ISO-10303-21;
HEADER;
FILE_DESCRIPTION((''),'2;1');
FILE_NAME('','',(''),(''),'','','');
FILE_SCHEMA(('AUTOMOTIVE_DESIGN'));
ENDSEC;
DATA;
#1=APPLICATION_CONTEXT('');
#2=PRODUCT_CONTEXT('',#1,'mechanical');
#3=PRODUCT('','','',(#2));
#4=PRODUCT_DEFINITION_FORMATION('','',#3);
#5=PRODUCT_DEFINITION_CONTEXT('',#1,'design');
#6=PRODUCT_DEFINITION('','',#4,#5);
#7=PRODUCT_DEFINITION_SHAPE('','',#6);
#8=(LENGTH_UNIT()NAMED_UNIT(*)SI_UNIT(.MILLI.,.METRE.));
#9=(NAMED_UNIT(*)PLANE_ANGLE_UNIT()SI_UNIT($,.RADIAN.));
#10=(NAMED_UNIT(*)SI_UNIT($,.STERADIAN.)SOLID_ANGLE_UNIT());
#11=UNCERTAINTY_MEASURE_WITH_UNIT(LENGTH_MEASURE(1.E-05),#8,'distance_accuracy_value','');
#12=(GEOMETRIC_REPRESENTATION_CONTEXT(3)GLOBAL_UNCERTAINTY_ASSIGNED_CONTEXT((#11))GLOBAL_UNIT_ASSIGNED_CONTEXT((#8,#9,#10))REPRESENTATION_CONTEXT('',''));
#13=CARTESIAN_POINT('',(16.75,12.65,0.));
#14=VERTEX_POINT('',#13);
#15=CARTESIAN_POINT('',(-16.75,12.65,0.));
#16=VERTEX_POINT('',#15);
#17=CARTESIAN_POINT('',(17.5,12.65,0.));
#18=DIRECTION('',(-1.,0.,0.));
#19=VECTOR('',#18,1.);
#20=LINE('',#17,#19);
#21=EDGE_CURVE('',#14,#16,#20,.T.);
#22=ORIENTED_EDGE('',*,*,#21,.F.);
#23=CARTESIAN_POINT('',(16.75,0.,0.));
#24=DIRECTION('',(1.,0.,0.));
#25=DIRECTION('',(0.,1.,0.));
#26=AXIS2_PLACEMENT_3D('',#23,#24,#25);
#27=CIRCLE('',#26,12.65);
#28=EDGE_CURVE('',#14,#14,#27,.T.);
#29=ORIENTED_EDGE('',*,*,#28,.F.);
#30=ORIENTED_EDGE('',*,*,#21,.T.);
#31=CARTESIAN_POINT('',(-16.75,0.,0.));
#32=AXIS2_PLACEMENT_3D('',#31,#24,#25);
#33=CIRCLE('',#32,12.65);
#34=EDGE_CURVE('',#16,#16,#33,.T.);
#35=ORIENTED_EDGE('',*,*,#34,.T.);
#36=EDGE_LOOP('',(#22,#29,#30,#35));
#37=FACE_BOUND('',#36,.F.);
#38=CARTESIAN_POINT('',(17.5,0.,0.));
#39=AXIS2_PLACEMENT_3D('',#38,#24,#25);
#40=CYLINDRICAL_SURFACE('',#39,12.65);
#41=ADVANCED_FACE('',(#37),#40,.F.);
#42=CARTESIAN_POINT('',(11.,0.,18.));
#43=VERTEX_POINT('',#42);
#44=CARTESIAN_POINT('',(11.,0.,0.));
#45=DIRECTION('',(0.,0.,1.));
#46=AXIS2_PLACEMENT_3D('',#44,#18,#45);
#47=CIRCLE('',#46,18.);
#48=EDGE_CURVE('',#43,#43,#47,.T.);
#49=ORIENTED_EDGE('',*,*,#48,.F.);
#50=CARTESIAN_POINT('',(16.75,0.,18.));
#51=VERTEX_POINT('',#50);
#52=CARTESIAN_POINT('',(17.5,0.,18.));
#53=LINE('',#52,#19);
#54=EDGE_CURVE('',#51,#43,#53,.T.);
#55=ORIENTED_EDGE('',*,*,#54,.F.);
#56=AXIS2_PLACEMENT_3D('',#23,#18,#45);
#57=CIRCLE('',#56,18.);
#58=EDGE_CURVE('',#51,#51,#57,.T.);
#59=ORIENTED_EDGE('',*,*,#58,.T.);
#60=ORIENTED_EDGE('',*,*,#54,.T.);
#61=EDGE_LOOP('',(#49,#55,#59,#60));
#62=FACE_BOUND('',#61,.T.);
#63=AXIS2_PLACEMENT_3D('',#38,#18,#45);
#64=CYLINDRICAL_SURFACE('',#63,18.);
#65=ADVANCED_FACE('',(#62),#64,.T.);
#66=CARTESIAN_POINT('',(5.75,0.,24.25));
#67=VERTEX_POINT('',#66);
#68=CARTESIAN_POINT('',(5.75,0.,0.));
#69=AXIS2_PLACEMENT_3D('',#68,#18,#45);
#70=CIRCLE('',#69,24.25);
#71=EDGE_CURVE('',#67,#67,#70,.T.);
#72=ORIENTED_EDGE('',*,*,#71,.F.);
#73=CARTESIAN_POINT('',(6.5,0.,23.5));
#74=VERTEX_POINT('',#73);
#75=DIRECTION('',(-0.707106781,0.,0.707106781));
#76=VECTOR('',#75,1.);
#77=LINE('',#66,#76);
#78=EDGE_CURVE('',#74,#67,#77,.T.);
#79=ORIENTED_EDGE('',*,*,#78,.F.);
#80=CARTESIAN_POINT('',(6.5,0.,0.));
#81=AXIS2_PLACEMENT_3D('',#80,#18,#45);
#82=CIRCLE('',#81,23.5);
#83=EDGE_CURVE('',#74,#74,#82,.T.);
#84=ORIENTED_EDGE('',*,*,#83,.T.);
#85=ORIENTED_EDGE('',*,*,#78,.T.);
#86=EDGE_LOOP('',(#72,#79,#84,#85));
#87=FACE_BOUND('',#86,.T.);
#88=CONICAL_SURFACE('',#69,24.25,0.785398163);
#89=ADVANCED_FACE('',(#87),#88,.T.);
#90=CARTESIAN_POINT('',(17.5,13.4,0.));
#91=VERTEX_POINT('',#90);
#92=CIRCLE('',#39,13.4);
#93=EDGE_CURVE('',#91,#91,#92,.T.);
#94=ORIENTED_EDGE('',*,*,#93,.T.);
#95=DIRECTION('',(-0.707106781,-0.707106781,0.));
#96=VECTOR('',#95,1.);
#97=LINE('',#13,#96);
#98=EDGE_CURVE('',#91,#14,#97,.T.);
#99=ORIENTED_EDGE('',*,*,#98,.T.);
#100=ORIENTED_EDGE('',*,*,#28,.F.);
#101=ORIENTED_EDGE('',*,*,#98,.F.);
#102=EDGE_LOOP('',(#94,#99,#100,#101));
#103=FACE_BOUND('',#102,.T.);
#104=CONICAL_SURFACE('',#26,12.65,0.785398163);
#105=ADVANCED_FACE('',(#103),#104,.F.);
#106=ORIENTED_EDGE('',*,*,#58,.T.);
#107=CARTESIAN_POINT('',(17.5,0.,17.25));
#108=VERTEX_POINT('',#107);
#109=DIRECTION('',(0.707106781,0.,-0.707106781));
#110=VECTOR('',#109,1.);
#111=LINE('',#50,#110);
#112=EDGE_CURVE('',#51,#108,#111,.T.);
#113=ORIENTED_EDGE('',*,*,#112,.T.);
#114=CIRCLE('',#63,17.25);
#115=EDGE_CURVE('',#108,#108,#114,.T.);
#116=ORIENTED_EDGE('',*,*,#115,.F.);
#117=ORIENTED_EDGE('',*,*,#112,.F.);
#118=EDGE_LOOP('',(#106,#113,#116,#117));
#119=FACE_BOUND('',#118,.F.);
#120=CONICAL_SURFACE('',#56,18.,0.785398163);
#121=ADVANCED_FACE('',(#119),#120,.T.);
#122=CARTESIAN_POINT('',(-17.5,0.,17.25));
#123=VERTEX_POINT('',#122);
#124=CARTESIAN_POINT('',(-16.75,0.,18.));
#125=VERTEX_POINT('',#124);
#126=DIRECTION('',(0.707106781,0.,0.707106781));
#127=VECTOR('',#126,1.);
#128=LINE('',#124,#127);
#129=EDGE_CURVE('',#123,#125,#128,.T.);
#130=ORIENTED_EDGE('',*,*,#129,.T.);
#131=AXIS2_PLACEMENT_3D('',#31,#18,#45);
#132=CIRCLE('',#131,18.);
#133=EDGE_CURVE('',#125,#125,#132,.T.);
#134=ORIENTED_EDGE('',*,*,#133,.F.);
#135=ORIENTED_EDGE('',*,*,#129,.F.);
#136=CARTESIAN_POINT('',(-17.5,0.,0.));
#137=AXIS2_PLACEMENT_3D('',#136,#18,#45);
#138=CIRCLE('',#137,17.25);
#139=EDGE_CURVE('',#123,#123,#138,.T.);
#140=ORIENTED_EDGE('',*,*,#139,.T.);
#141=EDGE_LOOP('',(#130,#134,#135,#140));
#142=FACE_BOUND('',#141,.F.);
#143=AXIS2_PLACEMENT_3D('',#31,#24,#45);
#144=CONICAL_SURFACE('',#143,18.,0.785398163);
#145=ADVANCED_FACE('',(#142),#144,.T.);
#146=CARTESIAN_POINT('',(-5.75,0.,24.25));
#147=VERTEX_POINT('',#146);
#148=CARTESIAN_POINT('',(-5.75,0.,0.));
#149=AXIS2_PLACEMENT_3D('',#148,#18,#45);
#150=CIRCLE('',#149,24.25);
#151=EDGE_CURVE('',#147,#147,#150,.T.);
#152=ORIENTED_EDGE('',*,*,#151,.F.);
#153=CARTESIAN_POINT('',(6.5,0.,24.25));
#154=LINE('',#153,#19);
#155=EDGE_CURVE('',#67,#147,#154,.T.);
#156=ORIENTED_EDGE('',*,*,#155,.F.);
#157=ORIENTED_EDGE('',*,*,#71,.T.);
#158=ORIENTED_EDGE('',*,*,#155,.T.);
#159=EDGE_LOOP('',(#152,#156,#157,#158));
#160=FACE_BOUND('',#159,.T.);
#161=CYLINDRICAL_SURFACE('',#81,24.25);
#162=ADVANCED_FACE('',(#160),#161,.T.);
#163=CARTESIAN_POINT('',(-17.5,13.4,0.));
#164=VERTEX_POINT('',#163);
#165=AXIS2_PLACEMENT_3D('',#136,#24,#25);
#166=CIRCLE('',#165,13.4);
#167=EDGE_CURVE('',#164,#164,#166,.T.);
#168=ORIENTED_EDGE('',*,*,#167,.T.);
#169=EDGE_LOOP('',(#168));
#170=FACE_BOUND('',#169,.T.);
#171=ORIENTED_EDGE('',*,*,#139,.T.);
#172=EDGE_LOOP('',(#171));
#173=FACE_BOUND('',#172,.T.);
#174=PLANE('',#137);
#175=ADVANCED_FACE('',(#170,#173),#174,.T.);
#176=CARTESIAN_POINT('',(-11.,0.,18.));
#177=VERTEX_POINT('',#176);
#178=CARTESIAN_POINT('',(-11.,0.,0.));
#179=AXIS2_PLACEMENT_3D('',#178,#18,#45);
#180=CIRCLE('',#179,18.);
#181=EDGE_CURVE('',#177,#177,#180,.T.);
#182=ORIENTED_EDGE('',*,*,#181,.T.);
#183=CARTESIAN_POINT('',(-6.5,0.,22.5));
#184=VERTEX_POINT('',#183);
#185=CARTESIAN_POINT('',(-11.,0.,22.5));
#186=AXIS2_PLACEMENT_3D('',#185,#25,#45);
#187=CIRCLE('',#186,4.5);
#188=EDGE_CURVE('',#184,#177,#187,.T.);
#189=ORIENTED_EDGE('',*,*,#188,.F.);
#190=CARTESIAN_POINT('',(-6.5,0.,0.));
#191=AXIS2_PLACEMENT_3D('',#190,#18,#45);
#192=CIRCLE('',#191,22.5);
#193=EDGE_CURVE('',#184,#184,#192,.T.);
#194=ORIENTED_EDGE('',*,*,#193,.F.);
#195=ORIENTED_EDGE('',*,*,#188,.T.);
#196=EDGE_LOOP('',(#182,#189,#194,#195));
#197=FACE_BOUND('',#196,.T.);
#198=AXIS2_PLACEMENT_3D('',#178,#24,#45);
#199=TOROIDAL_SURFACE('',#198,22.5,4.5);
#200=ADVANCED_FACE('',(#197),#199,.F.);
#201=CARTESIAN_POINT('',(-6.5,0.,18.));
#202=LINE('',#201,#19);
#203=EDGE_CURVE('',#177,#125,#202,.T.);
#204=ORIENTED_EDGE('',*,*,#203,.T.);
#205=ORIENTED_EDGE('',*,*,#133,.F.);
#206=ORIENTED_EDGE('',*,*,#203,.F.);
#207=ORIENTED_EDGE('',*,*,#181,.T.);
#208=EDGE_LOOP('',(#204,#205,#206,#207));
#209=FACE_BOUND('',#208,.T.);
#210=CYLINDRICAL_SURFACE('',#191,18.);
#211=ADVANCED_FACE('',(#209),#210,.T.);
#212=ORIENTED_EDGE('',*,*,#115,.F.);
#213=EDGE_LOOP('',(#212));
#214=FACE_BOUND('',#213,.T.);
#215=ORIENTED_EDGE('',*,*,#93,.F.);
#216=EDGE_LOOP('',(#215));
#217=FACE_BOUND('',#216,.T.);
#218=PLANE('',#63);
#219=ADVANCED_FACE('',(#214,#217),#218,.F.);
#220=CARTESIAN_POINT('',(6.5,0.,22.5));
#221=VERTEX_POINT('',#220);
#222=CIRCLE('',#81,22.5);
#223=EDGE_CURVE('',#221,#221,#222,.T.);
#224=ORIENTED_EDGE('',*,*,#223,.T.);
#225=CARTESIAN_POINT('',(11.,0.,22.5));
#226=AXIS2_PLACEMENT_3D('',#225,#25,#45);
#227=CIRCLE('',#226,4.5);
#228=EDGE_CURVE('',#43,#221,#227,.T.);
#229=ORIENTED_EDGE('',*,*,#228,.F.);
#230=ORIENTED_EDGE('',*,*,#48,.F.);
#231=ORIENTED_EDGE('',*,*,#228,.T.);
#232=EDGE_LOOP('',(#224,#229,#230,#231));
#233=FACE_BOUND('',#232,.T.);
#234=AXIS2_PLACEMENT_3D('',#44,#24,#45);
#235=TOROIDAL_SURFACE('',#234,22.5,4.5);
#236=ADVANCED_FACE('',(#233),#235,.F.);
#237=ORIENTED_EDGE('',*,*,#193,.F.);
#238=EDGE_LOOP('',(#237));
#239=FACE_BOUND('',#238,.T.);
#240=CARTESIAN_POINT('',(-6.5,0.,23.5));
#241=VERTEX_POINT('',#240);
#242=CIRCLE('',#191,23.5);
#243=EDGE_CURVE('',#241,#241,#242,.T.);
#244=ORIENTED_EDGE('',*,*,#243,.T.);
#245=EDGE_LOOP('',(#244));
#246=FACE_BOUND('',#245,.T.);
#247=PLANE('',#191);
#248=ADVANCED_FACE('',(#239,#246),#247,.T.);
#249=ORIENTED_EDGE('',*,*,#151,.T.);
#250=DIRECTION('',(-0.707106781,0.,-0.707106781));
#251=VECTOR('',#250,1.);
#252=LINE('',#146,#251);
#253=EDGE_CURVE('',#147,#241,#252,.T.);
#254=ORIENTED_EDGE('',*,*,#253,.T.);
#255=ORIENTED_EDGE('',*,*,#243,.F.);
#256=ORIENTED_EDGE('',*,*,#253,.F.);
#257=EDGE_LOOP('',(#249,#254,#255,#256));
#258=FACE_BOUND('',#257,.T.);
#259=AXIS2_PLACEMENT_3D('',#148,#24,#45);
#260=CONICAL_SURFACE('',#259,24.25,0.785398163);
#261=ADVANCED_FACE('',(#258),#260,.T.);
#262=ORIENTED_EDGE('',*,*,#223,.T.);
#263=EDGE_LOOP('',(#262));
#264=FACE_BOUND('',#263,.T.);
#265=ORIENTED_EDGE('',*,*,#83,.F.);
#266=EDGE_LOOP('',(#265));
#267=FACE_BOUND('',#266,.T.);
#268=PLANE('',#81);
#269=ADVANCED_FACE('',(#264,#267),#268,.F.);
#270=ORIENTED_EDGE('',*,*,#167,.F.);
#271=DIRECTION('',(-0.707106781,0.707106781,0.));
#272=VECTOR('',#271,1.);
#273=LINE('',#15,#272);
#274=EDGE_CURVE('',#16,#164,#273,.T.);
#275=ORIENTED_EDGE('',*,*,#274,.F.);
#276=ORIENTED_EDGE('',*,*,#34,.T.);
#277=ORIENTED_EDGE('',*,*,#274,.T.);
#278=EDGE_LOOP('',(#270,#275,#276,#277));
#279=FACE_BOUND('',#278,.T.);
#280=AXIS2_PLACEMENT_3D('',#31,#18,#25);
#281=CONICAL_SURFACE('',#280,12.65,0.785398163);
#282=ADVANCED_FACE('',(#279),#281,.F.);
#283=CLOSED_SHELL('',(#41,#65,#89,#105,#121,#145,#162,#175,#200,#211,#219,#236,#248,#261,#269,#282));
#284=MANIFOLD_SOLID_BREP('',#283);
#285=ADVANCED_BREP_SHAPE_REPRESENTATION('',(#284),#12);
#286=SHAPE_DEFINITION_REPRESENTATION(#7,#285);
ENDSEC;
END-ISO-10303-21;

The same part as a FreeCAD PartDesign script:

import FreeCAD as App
import Part
import Sketcher


def edges_at(feature, points):
    """Names of the edges that pass closest to the given points."""
    edges = feature.Shape.Edges
    near = lambda p: min(range(len(edges)), key=lambda i: edges[i].distToShape(Part.Vertex(*p))[0])
    return sorted({f"Edge{near(p) + 1}" for p in points})

doc = App.newDocument("Part")
body = doc.addObject("PartDesign::Body", "Body")

# Sketch on XZ plane
sketch1 = body.newObject("Sketcher::SketchObject", "Sketch")
sketch1.AttachmentSupport = (doc.getObject("XZ_Plane"), [""])
sketch1.MapMode = "FlatFace"
sketch1.addGeometry([
    Part.LineSegment(App.Vector(-17.5, 0, 0), App.Vector(17.5, 0, 0)),  # 0
    Part.LineSegment(App.Vector(17.5, 0, 0), App.Vector(17.5, 18, 0)),  # 1
    Part.LineSegment(App.Vector(17.5, 18, 0), App.Vector(6.5, 18, 0)),  # 2
    Part.LineSegment(App.Vector(6.5, 18, 0), App.Vector(6.5, 24.25, 0)),  # 3
    Part.LineSegment(App.Vector(6.5, 24.25, 0), App.Vector(-6.5, 24.25, 0)),  # 4
    Part.LineSegment(App.Vector(-6.5, 24.25, 0), App.Vector(-6.5, 18, 0)),  # 5
    Part.LineSegment(App.Vector(-6.5, 18, 0), App.Vector(-17.5, 18, 0)),  # 6
    Part.LineSegment(App.Vector(-17.5, 18, 0), App.Vector(-17.5, 0, 0)),  # 7
], False)
sketch1.addConstraint([
    Sketcher.Constraint("Coincident", 0, 2, 1, 1),
    Sketcher.Constraint("Coincident", 1, 2, 2, 1),
    Sketcher.Constraint("Coincident", 2, 2, 3, 1),
    Sketcher.Constraint("Coincident", 3, 2, 4, 1),
    Sketcher.Constraint("Coincident", 4, 2, 5, 1),
    Sketcher.Constraint("Coincident", 5, 2, 6, 1),
    Sketcher.Constraint("Coincident", 6, 2, 7, 1),
    Sketcher.Constraint("Coincident", 7, 2, 0, 1),
    Sketcher.Constraint("Horizontal", 0),
    Sketcher.Constraint("Vertical", 1),
    Sketcher.Constraint("Horizontal", 2),
    Sketcher.Constraint("Vertical", 3),
    Sketcher.Constraint("Horizontal", 4),
    Sketcher.Constraint("Vertical", 5),
    Sketcher.Constraint("Horizontal", 6),
    Sketcher.Constraint("Vertical", 7),
    Sketcher.Constraint("Symmetric", 0, 2, 7, 2, -1, 1),
    Sketcher.Constraint("Symmetric", 2, 2, 5, 2, -2),
    Sketcher.Constraint("DistanceX", 0, 1, 0, 2, 35.0),
    Sketcher.Constraint("DistanceX", 2, 2, 2, 1, 11.0),
    Sketcher.Constraint("DistanceY", 1, 1, 1, 2, 18.0),
    Sketcher.Constraint("DistanceY", 3, 1, 3, 2, 6.25),
])
revolution = body.newObject("PartDesign::Revolution", "Revolution")
revolution.Profile = sketch1
revolution.ReferenceAxis = (sketch1, ["H_Axis"])
revolution.Angle = 360
doc.recompute()

fillet = body.newObject("PartDesign::Fillet", "Fillet")
fillet.Base = (revolution, edges_at(revolution, [(6.5, 0, -18), (-6.5, 0, -18)]))
fillet.Radius = 4.5

# Sketch on YZ plane
sketch2 = body.newObject("Sketcher::SketchObject", "Sketch001")
sketch2.AttachmentSupport = (doc.getObject("YZ_Plane"), [""])
sketch2.MapMode = "FlatFace"
sketch2.AttachmentOffset = App.Placement(App.Vector(0, 0, 17.5), App.Rotation())
sketch2.addGeometry(Part.Circle(App.Vector(0, 0, 0), App.Vector(0, 0, 1), 12.65), False)
sketch2.addConstraint([
    Sketcher.Constraint("Coincident", 0, 3, -1, 1),
    Sketcher.Constraint("Diameter", 0, 25.3),
])
pocket1 = body.newObject("PartDesign::Pocket", "Pocket")
pocket1.Profile = sketch2
pocket1.Type = "ThroughAll"
doc.recompute()

chamfer = body.newObject("PartDesign::Chamfer", "Chamfer")
chamfer.Base = (pocket1, edges_at(pocket1, [
    (17.5, -12.65, 0),
    (0, 12.65, 0),
    (-17.5, -12.65, 0),
    (-6.5, 0, -24.25),
    (-17.5, 0, -18),
    (6.5, 0, -24.25),
    (17.5, 0, -18),
]))
chamfer.Size = 0.75

doc.recompute()
